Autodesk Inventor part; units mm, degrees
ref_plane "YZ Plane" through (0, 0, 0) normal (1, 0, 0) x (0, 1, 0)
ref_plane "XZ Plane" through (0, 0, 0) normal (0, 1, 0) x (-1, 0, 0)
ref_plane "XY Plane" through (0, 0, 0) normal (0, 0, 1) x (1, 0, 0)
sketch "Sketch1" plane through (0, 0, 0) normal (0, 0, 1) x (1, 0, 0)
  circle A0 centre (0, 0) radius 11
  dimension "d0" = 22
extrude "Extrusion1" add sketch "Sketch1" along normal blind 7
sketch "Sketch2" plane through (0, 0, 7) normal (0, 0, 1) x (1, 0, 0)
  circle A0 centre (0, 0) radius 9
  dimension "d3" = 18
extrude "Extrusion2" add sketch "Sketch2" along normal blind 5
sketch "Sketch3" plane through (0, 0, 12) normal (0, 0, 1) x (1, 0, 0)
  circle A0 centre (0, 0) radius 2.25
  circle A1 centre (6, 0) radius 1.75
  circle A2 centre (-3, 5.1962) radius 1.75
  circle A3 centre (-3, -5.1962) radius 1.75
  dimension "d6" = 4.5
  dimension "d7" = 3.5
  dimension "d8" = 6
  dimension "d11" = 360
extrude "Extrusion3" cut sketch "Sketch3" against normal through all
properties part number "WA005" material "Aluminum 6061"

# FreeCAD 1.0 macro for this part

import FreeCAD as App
import Part
import Sketcher

doc = App.newDocument("Part")
body = doc.addObject("PartDesign::Body", "Body")

# Sketch on XY plane
sketch1 = body.newObject("Sketcher::SketchObject", "Sketch")
sketch1.AttachmentSupport = (doc.getObject("XY_Plane"), [""])
sketch1.MapMode = "FlatFace"
sketch1.addGeometry(Part.Circle(App.Vector(0, 0, 0), App.Vector(0, 0, 1), 11), False)
sketch1.addConstraint([
    Sketcher.Constraint("Coincident", 0, 3, -1, 1),
    Sketcher.Constraint("Diameter", 0, 22.0),
])
pad1 = body.newObject("PartDesign::Pad", "Pad")
pad1.Profile = sketch1
pad1.Length = 7

# Sketch on XY plane
sketch2 = body.newObject("Sketcher::SketchObject", "Sketch001")
sketch2.AttachmentSupport = (doc.getObject("XY_Plane"), [""])
sketch2.MapMode = "FlatFace"
sketch2.AttachmentOffset = App.Placement(App.Vector(0, 0, 7), App.Rotation())
sketch2.addGeometry(Part.Circle(App.Vector(0, 0, 0), App.Vector(0, 0, 1), 9), False)
sketch2.addConstraint([
    Sketcher.Constraint("Coincident", 0, 3, -1, 1),
    Sketcher.Constraint("Diameter", 0, 18.0),
])
pad2 = body.newObject("PartDesign::Pad", "Pad001")
pad2.Profile = sketch2
pad2.Length = 5

# Sketch on XY plane
sketch3 = body.newObject("Sketcher::SketchObject", "Sketch002")
sketch3.AttachmentSupport = (doc.getObject("XY_Plane"), [""])
sketch3.MapMode = "FlatFace"
sketch3.AttachmentOffset = App.Placement(App.Vector(0, 0, 12), App.Rotation())
sketch3.addGeometry([
    Part.Circle(App.Vector(0, 0, 0), App.Vector(0, 0, 1), 2.25),
    Part.Circle(App.Vector(6, 0, 0), App.Vector(0, 0, 1), 1.75),
    Part.Circle(App.Vector(-3, 5.1962, 0), App.Vector(0, 0, 1), 1.75),
    Part.Circle(App.Vector(-3, -5.1962, 0), App.Vector(0, 0, 1), 1.75),
], False)
sketch3.addConstraint([
    Sketcher.Constraint("Coincident", 0, 3, -1, 1),
    Sketcher.Constraint("Equal", 1, 2),
    Sketcher.Constraint("Equal", 2, 3),
    Sketcher.Constraint("Symmetric", 2, 3, 3, 3, -1),
    Sketcher.Constraint("PointOnObject", 1, 3, -1),
    Sketcher.Constraint("Diameter", 0, 4.5),
    Sketcher.Constraint("Diameter", 1, 3.5),
    Sketcher.Constraint("DistanceX", -1, 1, 1, 3, 6.0),
    Sketcher.Constraint("DistanceX", 2, 3, -1, 1, 3.0),
    Sketcher.Constraint("DistanceY", -1, 1, 2, 3, 5.1962),
])
pocket1 = body.newObject("PartDesign::Pocket", "Pocket")
pocket1.Profile = sketch3
pocket1.Type = "ThroughAll"

doc.recompute()
